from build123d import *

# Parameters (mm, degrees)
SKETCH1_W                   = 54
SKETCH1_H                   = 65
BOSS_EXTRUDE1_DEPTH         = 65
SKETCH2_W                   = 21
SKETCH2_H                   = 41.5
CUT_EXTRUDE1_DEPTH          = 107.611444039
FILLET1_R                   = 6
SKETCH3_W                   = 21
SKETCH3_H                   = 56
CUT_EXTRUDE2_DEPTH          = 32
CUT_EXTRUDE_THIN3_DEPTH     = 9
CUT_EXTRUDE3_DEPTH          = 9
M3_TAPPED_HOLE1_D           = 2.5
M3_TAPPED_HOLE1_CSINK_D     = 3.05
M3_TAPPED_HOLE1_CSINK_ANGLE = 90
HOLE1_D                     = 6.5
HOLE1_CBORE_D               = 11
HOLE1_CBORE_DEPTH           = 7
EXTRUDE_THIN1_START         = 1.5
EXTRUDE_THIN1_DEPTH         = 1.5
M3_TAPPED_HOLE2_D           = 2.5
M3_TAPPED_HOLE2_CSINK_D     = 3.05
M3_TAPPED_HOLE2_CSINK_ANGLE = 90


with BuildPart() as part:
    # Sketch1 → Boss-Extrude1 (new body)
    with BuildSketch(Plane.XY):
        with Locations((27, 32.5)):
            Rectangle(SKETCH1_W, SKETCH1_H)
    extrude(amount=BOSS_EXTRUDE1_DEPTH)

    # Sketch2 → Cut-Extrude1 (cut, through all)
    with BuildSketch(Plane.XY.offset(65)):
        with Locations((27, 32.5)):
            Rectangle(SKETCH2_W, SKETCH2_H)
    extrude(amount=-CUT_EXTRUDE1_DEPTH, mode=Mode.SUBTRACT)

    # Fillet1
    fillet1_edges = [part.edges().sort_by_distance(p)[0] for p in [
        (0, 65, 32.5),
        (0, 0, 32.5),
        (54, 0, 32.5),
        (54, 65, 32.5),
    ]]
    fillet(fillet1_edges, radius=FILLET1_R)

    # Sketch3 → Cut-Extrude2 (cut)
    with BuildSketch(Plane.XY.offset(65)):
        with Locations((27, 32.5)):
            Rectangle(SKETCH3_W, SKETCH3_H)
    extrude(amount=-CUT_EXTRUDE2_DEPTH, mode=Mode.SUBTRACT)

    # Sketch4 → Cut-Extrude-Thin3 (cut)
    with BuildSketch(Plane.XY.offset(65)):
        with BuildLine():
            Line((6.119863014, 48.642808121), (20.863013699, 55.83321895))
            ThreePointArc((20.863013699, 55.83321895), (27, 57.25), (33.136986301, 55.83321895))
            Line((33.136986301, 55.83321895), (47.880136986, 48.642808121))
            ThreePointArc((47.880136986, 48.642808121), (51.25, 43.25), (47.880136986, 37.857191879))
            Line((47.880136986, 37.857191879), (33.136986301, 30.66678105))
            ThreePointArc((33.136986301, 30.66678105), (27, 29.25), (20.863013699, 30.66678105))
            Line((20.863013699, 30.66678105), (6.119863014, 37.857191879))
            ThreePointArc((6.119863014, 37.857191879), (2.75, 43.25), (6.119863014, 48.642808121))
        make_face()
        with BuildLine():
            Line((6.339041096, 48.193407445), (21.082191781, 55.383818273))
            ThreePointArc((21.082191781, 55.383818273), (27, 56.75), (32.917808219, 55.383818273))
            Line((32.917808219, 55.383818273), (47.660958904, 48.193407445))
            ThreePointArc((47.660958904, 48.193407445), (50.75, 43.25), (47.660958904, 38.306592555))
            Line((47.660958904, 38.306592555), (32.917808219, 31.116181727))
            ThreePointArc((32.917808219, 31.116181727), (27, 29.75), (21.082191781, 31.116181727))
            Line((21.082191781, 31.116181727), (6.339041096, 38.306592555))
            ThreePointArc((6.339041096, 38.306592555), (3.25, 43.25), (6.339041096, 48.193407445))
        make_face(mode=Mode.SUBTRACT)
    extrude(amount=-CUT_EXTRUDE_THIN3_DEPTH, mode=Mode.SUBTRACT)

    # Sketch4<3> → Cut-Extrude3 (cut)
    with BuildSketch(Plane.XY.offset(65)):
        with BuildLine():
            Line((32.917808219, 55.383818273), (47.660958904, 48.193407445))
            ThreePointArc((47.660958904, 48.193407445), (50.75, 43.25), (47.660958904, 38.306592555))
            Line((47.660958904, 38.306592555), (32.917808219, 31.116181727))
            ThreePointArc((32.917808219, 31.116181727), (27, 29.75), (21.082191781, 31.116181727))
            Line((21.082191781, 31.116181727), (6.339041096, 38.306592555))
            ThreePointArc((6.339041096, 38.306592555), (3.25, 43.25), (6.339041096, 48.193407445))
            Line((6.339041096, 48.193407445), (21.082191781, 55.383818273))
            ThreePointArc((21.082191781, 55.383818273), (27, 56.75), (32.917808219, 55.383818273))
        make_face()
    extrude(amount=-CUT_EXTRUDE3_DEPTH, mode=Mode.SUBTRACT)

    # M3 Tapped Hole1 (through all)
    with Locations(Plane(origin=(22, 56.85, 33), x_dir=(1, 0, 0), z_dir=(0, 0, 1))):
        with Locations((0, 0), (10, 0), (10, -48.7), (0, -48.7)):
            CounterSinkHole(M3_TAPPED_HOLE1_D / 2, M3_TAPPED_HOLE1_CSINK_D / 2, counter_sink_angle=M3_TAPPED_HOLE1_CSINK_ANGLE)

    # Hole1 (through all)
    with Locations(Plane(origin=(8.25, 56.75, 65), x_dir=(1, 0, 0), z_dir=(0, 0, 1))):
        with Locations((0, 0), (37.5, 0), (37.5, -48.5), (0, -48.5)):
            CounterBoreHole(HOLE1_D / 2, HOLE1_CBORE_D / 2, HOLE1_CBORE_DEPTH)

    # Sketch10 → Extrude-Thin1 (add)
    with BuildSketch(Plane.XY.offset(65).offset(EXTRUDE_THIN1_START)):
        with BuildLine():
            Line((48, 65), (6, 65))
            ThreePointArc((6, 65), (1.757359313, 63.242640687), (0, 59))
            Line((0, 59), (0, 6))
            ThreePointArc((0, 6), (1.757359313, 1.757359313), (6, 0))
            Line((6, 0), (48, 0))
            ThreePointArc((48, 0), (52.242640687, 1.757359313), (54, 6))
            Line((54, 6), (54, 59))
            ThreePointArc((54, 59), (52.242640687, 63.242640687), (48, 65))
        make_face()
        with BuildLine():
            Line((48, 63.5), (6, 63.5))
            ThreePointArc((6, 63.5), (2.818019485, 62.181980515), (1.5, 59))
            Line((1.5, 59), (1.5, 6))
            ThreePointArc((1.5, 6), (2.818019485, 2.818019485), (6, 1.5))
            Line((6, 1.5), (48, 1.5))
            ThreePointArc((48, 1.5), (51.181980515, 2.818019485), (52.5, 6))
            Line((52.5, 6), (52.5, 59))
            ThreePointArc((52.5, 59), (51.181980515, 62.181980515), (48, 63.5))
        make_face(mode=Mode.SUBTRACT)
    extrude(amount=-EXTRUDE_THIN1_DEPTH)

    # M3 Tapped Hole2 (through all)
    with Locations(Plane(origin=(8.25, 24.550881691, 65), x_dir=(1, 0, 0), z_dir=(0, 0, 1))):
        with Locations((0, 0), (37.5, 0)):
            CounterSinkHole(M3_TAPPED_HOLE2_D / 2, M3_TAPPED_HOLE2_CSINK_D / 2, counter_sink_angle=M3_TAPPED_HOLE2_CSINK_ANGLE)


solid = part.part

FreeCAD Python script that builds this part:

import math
import FreeCAD as App
import Part
import Sketcher

V = App.Vector


def edges_at(feature, points):
    """Names of the edges that pass closest to the given points."""
    edges = feature.Shape.Edges
    near = lambda p: min(range(len(edges)), key=lambda i: edges[i].distToShape(Part.Vertex(*p))[0])
    return sorted({f"Edge{near(p) + 1}" for p in points})


def add_polygon(sketch, points):
    """Adds a closed chain of lines whose ends are joined by coincident constraints."""
    first, n = sketch.GeometryCount, len(points)
    for a, b in zip(points, points[1:] + points[:1]):
        sketch.addGeometry(Part.LineSegment(App.Vector(*a, 0), App.Vector(*b, 0)), False)
    for i in range(n):
        sketch.addConstraint(Sketcher.Constraint("Coincident", first + i, 2, first + (i + 1) % n, 1))

doc = App.newDocument("Part")
body = doc.addObject("PartDesign::Body", "Body")

# Sketch on XY plane
sketch1 = body.newObject("Sketcher::SketchObject", "Sketch")
sketch1.AttachmentSupport = (doc.getObject("XY_Plane"), [""])
sketch1.MapMode = "FlatFace"
add_polygon(sketch1, [(0, 65), (0, 0), (54, 0), (54, 65)])  # lines 0-3
sketch1.addConstraint(Sketcher.Constraint("Vertical", 0))
sketch1.addConstraint(Sketcher.Constraint("Horizontal", 1))
sketch1.addConstraint(Sketcher.Constraint("Vertical", 2))
sketch1.addConstraint(Sketcher.Constraint("Horizontal", 3))
sketch1.addConstraint(Sketcher.Constraint("Coincident", 0, 2, -1, 1))
sketch1.addConstraint(Sketcher.Constraint("DistanceX", 1, 1, 1, 2, 54.0))
sketch1.addConstraint(Sketcher.Constraint("DistanceY", 0, 2, 0, 1, 65.0))
pad1 = body.newObject("PartDesign::Pad", "Pad")
pad1.Profile = sketch1
pad1.Length = 65

# Sketch on XY plane
sketch2 = body.newObject("Sketcher::SketchObject", "Sketch001")
sketch2.AttachmentSupport = (doc.getObject("XY_Plane"), [""])
sketch2.MapMode = "FlatFace"
sketch2.AttachmentOffset = App.Placement(V(0, 0, 65), App.Rotation())
add_polygon(sketch2, [(16, 53), (16, 12), (38, 12), (38, 53)])  # lines 0-3
sketch2.addConstraint(Sketcher.Constraint("Vertical", 0))
sketch2.addConstraint(Sketcher.Constraint("Horizontal", 1))
sketch2.addConstraint(Sketcher.Constraint("Vertical", 2))
sketch2.addConstraint(Sketcher.Constraint("Horizontal", 3))
sketch2.addConstraint(Sketcher.Constraint("DistanceX", 1, 1, 1, 2, 21.0))
sketch2.addConstraint(Sketcher.Constraint("DistanceY", 0, 2, 0, 1, 41.5))
sketch2.addConstraint(Sketcher.Constraint("DistanceX", -1, 1, 0, 2, 16.5))
sketch2.addConstraint(Sketcher.Constraint("DistanceY", -1, 1, 0, 2, 11.75))
pocket1 = body.newObject("PartDesign::Pocket", "Pocket")
pocket1.Profile = sketch2
pocket1.Type = "ThroughAll"
doc.recompute()

fillet = body.newObject("PartDesign::Fillet", "Fillet")
fillet.Base = (pocket1, edges_at(pocket1, [
    (0, 65, 32.5),
    (0, 0, 32.5),
    (54, 0, 32.5),
    (54, 65, 32.5),
]))
fillet.Radius = 6

# Sketch on XY plane
sketch3 = body.newObject("Sketcher::SketchObject", "Sketch002")
sketch3.AttachmentSupport = (doc.getObject("XY_Plane"), [""])
sketch3.MapMode = "FlatFace"
sketch3.AttachmentOffset = App.Placement(V(0, 0, 65), App.Rotation())
add_polygon(sketch3, [(16, 60), (16, 4), (38, 4), (38, 60)])  # lines 0-3
sketch3.addConstraint(Sketcher.Constraint("Vertical", 0))
sketch3.addConstraint(Sketcher.Constraint("Horizontal", 1))
sketch3.addConstraint(Sketcher.Constraint("Vertical", 2))
sketch3.addConstraint(Sketcher.Constraint("Horizontal", 3))
sketch3.addConstraint(Sketcher.Constraint("DistanceX", 1, 1, 1, 2, 21.0))
sketch3.addConstraint(Sketcher.Constraint("DistanceY", 0, 2, 0, 1, 56.0))
sketch3.addConstraint(Sketcher.Constraint("DistanceX", -1, 1, 0, 2, 16.5))
sketch3.addConstraint(Sketcher.Constraint("DistanceY", -1, 1, 0, 2, 4.5))
pocket2 = body.newObject("PartDesign::Pocket", "Pocket001")
pocket2.Profile = sketch3
pocket2.Length = 32

# Sketch on XY plane
sketch4 = body.newObject("Sketcher::SketchObject", "Sketch003")
sketch4.AttachmentSupport = (doc.getObject("XY_Plane"), [""])
sketch4.MapMode = "FlatFace"
sketch4.AttachmentOffset = App.Placement(V(0, 0, 65), App.Rotation())
sketch4.addGeometry(Part.LineSegment(V(21, 56, 0), V(6, 49, 0)), False)
sketch4.addGeometry(Part.ArcOfCircle(Part.Circle(V(9, 43, 0), V(0, 0, 1), 6), math.radians(116), math.radians(244)), False)
sketch4.addGeometry(Part.LineSegment(V(6, 38, 0), V(21, 31, 0)), False)
sketch4.addGeometry(Part.ArcOfCircle(Part.Circle(V(27, 43, 0), V(0, 0, 1), 14), math.radians(-116), math.radians(-64)), False)
sketch4.addGeometry(Part.LineSegment(V(33, 31, 0), V(48, 38, 0)), False)
sketch4.addGeometry(Part.ArcOfCircle(Part.Circle(V(45, 43, 0), V(0, 0, 1), 6), math.radians(-64), math.radians(64)), False)
sketch4.addGeometry(Part.LineSegment(V(48, 49, 0), V(33, 56, 0)), False)
sketch4.addGeometry(Part.ArcOfCircle(Part.Circle(V(27, 43, 0), V(0, 0, 1), 14), math.radians(64), math.radians(116)), False)
sketch4.addGeometry(Part.LineSegment(V(6, 48, 0), V(21, 55, 0)), False)
sketch4.addGeometry(Part.ArcOfCircle(Part.Circle(V(27, 43, 0), V(0, 0, 1), 14), math.radians(64), math.radians(116)), False)
sketch4.addGeometry(Part.LineSegment(V(33, 55, 0), V(48, 48, 0)), False)
sketch4.addGeometry(Part.ArcOfCircle(Part.Circle(V(45, 43, 0), V(0, 0, 1), 6), math.radians(-64), math.radians(64)), False)
sketch4.addGeometry(Part.LineSegment(V(48, 38, 0), V(33, 31, 0)), False)
sketch4.addGeometry(Part.ArcOfCircle(Part.Circle(V(27, 43, 0), V(0, 0, 1), 14), math.radians(-116), math.radians(-64)), False)
sketch4.addGeometry(Part.LineSegment(V(21, 31, 0), V(6, 38, 0)), False)
sketch4.addGeometry(Part.ArcOfCircle(Part.Circle(V(9, 43, 0), V(0, 0, 1), 6), math.radians(116), math.radians(244)), False)
sketch4.addConstraint(Sketcher.Constraint("Tangent", 0, 2, 1, 1))
sketch4.addConstraint(Sketcher.Constraint("Tangent", 1, 2, 2, 1))
sketch4.addConstraint(Sketcher.Constraint("Tangent", 2, 2, 3, 1))
sketch4.addConstraint(Sketcher.Constraint("Tangent", 3, 2, 4, 1))
sketch4.addConstraint(Sketcher.Constraint("Tangent", 4, 2, 5, 1))
sketch4.addConstraint(Sketcher.Constraint("Tangent", 5, 2, 6, 1))
sketch4.addConstraint(Sketcher.Constraint("Tangent", 6, 2, 7, 1))
sketch4.addConstraint(Sketcher.Constraint("Tangent", 7, 2, 0, 1))
sketch4.addConstraint(Sketcher.Constraint("Tangent", 8, 2, 9, 2))
sketch4.addConstraint(Sketcher.Constraint("Tangent", 9, 1, 10, 1))
sketch4.addConstraint(Sketcher.Constraint("Tangent", 10, 2, 11, 2))
sketch4.addConstraint(Sketcher.Constraint("Tangent", 11, 1, 12, 1))
sketch4.addConstraint(Sketcher.Constraint("Tangent", 12, 2, 13, 2))
sketch4.addConstraint(Sketcher.Constraint("Tangent", 13, 1, 14, 1))
sketch4.addConstraint(Sketcher.Constraint("Tangent", 14, 2, 15, 2))
sketch4.addConstraint(Sketcher.Constraint("Tangent", 15, 1, 8, 1))
sketch4.addConstraint(Sketcher.Constraint("Coincident", 7, 3, 3, 3))
sketch4.addConstraint(Sketcher.Constraint("Coincident", 9, 3, 3, 3))
sketch4.addConstraint(Sketcher.Constraint("Coincident", 11, 3, 5, 3))
sketch4.addConstraint(Sketcher.Constraint("Coincident", 13, 3, 3, 3))
sketch4.addConstraint(Sketcher.Constraint("Coincident", 15, 3, 1, 3))
sketch4.addConstraint(Sketcher.Constraint("Equal", 1, 5))
sketch4.addConstraint(Sketcher.Constraint("Equal", 3, 7))
sketch4.addConstraint(Sketcher.Constraint("Equal", 9, 13))
sketch4.addConstraint(Sketcher.Constraint("Equal", 11, 15))
sketch4.addConstraint(Sketcher.Constraint("Parallel", 0, 4))
sketch4.addConstraint(Sketcher.Constraint("Parallel", 2, 6))
sketch4.addConstraint(Sketcher.Constraint("Parallel", 4, 8))
sketch4.addConstraint(Sketcher.Constraint("Horizontal", 1, 3, 3, 3))
sketch4.addConstraint(Sketcher.Constraint("Radius", 1, 6.0))
sketch4.addConstraint(Sketcher.Constraint("Radius", 3, 14.0))
sketch4.addConstraint(Sketcher.Constraint("Radius", 9, 13.5))
sketch4.addConstraint(Sketcher.Constraint("DistanceX", -1, 1, 3, 3, 27.0))
sketch4.addConstraint(Sketcher.Constraint("DistanceX", 1, 3, 5, 3, 36.5))
sketch4.addConstraint(Sketcher.Constraint("DistanceY", -1, 1, 1, 3, 43.25))
pocket3 = body.newObject("PartDesign::Pocket", "Pocket002")
pocket3.Profile = sketch4
pocket3.Length = 9

# Sketch on XY plane
sketch5 = body.newObject("Sketcher::SketchObject", "Sketch004")
sketch5.AttachmentSupport = (doc.getObject("XY_Plane"), [""])
sketch5.MapMode = "FlatFace"
sketch5.AttachmentOffset = App.Placement(V(0, 0, 65), App.Rotation())
sketch5.addGeometry(Part.LineSegment(V(48, 48, 0), V(33, 55, 0)), False)
sketch5.addGeometry(Part.ArcOfCircle(Part.Circle(V(27, 43, 0), V(0, 0, 1), 14), math.radians(64), math.radians(116)), False)
sketch5.addGeometry(Part.LineSegment(V(21, 55, 0), V(6, 48, 0)), False)
sketch5.addGeometry(Part.ArcOfCircle(Part.Circle(V(9, 43, 0), V(0, 0, 1), 6), math.radians(116), math.radians(244)), False)
sketch5.addGeometry(Part.LineSegment(V(6, 38, 0), V(21, 31, 0)), False)
sketch5.addGeometry(Part.ArcOfCircle(Part.Circle(V(27, 43, 0), V(0, 0, 1), 14), math.radians(-116), math.radians(-64)), False)
sketch5.addGeometry(Part.LineSegment(V(33, 31, 0), V(48, 38, 0)), False)
sketch5.addGeometry(Part.ArcOfCircle(Part.Circle(V(45, 43, 0), V(0, 0, 1), 6), math.radians(-64), math.radians(64)), False)
sketch5.addConstraint(Sketcher.Constraint("Tangent", 0, 2, 1, 1))
sketch5.addConstraint(Sketcher.Constraint("Tangent", 1, 2, 2, 1))
sketch5.addConstraint(Sketcher.Constraint("Tangent", 2, 2, 3, 1))
sketch5.addConstraint(Sketcher.Constraint("Tangent", 3, 2, 4, 1))
sketch5.addConstraint(Sketcher.Constraint("Tangent", 4, 2, 5, 1))
sketch5.addConstraint(Sketcher.Constraint("Tangent", 5, 2, 6, 1))
sketch5.addConstraint(Sketcher.Constraint("Tangent", 6, 2, 7, 1))
sketch5.addConstraint(Sketcher.Constraint("Tangent", 7, 2, 0, 1))
sketch5.addConstraint(Sketcher.Constraint("Coincident", 5, 3, 1, 3))
sketch5.addConstraint(Sketcher.Constraint("Equal", 1, 5))
sketch5.addConstraint(Sketcher.Constraint("Equal", 3, 7))
sketch5.addConstraint(Sketcher.Constraint("Parallel", 0, 4))
sketch5.addConstraint(Sketcher.Constraint("Parallel", 2, 6))
sketch5.addConstraint(Sketcher.Constraint("Horizontal", 1, 3, 3, 3))
sketch5.addConstraint(Sketcher.Constraint("Radius", 1, 13.5))
sketch5.addConstraint(Sketcher.Constraint("Radius", 3, 5.5))
sketch5.addConstraint(Sketcher.Constraint("DistanceX", -1, 1, 1, 3, 27.0))
sketch5.addConstraint(Sketcher.Constraint("DistanceX", 3, 3, 7, 3, 36.5))
sketch5.addConstraint(Sketcher.Constraint("DistanceY", -1, 1, 1, 3, 43.25))
pocket4 = body.newObject("PartDesign::Pocket", "Pocket003")
pocket4.Profile = sketch5
pocket4.Length = 9

# Sketch on XY plane
sketch6 = body.newObject("Sketcher::SketchObject", "Sketch005")
sketch6.AttachmentSupport = (doc.getObject("XY_Plane"), [""])
sketch6.MapMode = "FlatFace"
sketch6.AttachmentOffset = App.Placement(V(0, 0, 33), App.Rotation())
sketch6.addGeometry(Part.Circle(V(22, 56.9, 0), V(0, 0, 1), 1.2), False)
sketch6.addGeometry(Part.Circle(V(32, 56.9, 0), V(0, 0, 1), 1.2), False)
sketch6.addGeometry(Part.Circle(V(32, 8.2, 0), V(0, 0, 1), 1.2), False)
sketch6.addGeometry(Part.Circle(V(22, 8.2, 0), V(0, 0, 1), 1.2), False)
sketch6.addConstraint(Sketcher.Constraint("Equal", 0, 1))
sketch6.addConstraint(Sketcher.Constraint("Equal", 1, 2))
sketch6.addConstraint(Sketcher.Constraint("Equal", 2, 3))
sketch6.addConstraint(Sketcher.Constraint("Horizontal", 0, 3, 1, 3))
sketch6.addConstraint(Sketcher.Constraint("Horizontal", 2, 3, 3, 3))
sketch6.addConstraint(Sketcher.Constraint("Vertical", 1, 3, 2, 3))
sketch6.addConstraint(Sketcher.Constraint("Vertical", 0, 3, 3, 3))
sketch6.addConstraint(Sketcher.Constraint("Diameter", 0, 2.5))
sketch6.addConstraint(Sketcher.Constraint("DistanceX", -1, 1, 0, 3, 22.0))
sketch6.addConstraint(Sketcher.Constraint("DistanceX", -1, 1, 1, 3, 32.0))
sketch6.addConstraint(Sketcher.Constraint("DistanceY", 2, 3, 1, 3, 48.7))
sketch6.addConstraint(Sketcher.Constraint("DistanceY", -1, 1, 0, 3, 56.85))
doc.recompute()
hole = body.newObject("PartDesign::Hole", "Hole")
hole.Profile = sketch6
hole.ThreadType = "None"
hole.Diameter = 2.5
hole.DepthType = "ThroughAll"
hole.HoleCutType = "Countersink"
hole.HoleCutDiameter = 3.05
hole.HoleCutCountersinkAngle = 90

# Sketch on XY plane
sketch7 = body.newObject("Sketcher::SketchObject", "Sketch006")
sketch7.AttachmentSupport = (doc.getObject("XY_Plane"), [""])
sketch7.MapMode = "FlatFace"
sketch7.AttachmentOffset = App.Placement(V(0, 0, 65), App.Rotation())
sketch7.addGeometry(Part.Circle(V(8.2, 56.8, 0), V(0, 0, 1), 3.2), False)
sketch7.addGeometry(Part.Circle(V(45.8, 56.8, 0), V(0, 0, 1), 3.2), False)
sketch7.addGeometry(Part.Circle(V(45.8, 8.2, 0), V(0, 0, 1), 3.2), False)
sketch7.addGeometry(Part.Circle(V(8.2, 8.2, 0), V(0, 0, 1), 3.2), False)
sketch7.addConstraint(Sketcher.Constraint("Equal", 0, 1))
sketch7.addConstraint(Sketcher.Constraint("Equal", 1, 2))
sketch7.addConstraint(Sketcher.Constraint("Equal", 2, 3))
sketch7.addConstraint(Sketcher.Constraint("Horizontal", 0, 3, 1, 3))
sketch7.addConstraint(Sketcher.Constraint("Horizontal", 2, 3, 3, 3))
sketch7.addConstraint(Sketcher.Constraint("Vertical", 1, 3, 2, 3))
sketch7.addConstraint(Sketcher.Constraint("Vertical", 0, 3, 3, 3))
sketch7.addConstraint(Sketcher.Constraint("Diameter", 0, 6.5))
sketch7.addConstraint(Sketcher.Constraint("DistanceX", 0, 3, 1, 3, 37.5))
sketch7.addConstraint(Sketcher.Constraint("DistanceY", 2, 3, 1, 3, 48.5))
sketch7.addConstraint(Sketcher.Constraint("DistanceX", -1, 1, 0, 3, 8.25))
sketch7.addConstraint(Sketcher.Constraint("DistanceY", -1, 1, 0, 3, 56.75))
doc.recompute()
hole2 = body.newObject("PartDesign::Hole", "Hole001")
hole2.Profile = sketch7
hole2.ThreadType = "None"
hole2.Diameter = 6.5
hole2.DepthType = "ThroughAll"
hole2.HoleCutType = "Counterbore"
hole2.HoleCutDiameter = 11
hole2.HoleCutDepth = 7

# Sketch on XY plane
sketch8 = body.newObject("Sketcher::SketchObject", "Sketch007")
sketch8.AttachmentSupport = (doc.getObject("XY_Plane"), [""])
sketch8.MapMode = "FlatFace"
sketch8.AttachmentOffset = App.Placement(V(0, 0, 66.5), App.Rotation())
sketch8.addGeometry(Part.LineSegment(V(48, 65, 0), V(6, 65, 0)), False)
sketch8.addGeometry(Part.ArcOfCircle(Part.Circle(V(6, 59, 0), V(0, 0, 1), 6), math.radians(90), math.radians(180)), False)
sketch8.addGeometry(Part.LineSegment(V(0, 59, 0), V(0, 6, 0)), False)
sketch8.addGeometry(Part.ArcOfCircle(Part.Circle(V(6, 6, 0), V(0, 0, 1), 6), math.radians(180), math.radians(270)), False)
sketch8.addGeometry(Part.LineSegment(V(6, 0, 0), V(48, 0, 0)), False)
sketch8.addGeometry(Part.ArcOfCircle(Part.Circle(V(48, 6, 0), V(0, 0, 1), 6), math.radians(-90), math.radians(0)), False)
sketch8.addGeometry(Part.LineSegment(V(54, 6, 0), V(54, 59, 0)), False)
sketch8.addGeometry(Part.ArcOfCircle(Part.Circle(V(48, 59, 0), V(0, 0, 1), 6), math.radians(0), math.radians(90)), False)
sketch8.addGeometry(Part.LineSegment(V(6, 63.5, 0), V(48, 63.5, 0)), False)
sketch8.addGeometry(Part.ArcOfCircle(Part.Circle(V(48, 59, 0), V(0, 0, 1), 4.5), math.radians(0), math.radians(90)), False)
sketch8.addGeometry(Part.LineSegment(V(52.5, 59, 0), V(52.5, 6, 0)), False)
sketch8.addGeometry(Part.ArcOfCircle(Part.Circle(V(48, 6, 0), V(0, 0, 1), 4.5), math.radians(-90), math.radians(0)), False)
sketch8.addGeometry(Part.LineSegment(V(48, 1.5, 0), V(6, 1.5, 0)), False)
sketch8.addGeometry(Part.ArcOfCircle(Part.Circle(V(6, 6, 0), V(0, 0, 1), 4.5), math.radians(-180), math.radians(-90)), False)
sketch8.addGeometry(Part.LineSegment(V(1.5, 6, 0), V(1.5, 59, 0)), False)
sketch8.addGeometry(Part.ArcOfCircle(Part.Circle(V(6, 59, 0), V(0, 0, 1), 4.5), math.radians(90), math.radians(180)), False)
sketch8.addConstraint(Sketcher.Constraint("Tangent", 0, 2, 1, 1))
sketch8.addConstraint(Sketcher.Constraint("Tangent", 1, 2, 2, 1))
sketch8.addConstraint(Sketcher.Constraint("Tangent", 2, 2, 3, 1))
sketch8.addConstraint(Sketcher.Constraint("Tangent", 3, 2, 4, 1))
sketch8.addConstraint(Sketcher.Constraint("Tangent", 4, 2, 5, 1))
sketch8.addConstraint(Sketcher.Constraint("Tangent", 5, 2, 6, 1))
sketch8.addConstraint(Sketcher.Constraint("Tangent", 6, 2, 7, 1))
sketch8.addConstraint(Sketcher.Constraint("Tangent", 7, 2, 0, 1))
sketch8.addConstraint(Sketcher.Constraint("Tangent", 8, 2, 9, 2))
sketch8.addConstraint(Sketcher.Constraint("Tangent", 9, 1, 10, 1))
sketch8.addConstraint(Sketcher.Constraint("Tangent", 10, 2, 11, 2))
sketch8.addConstraint(Sketcher.Constraint("Tangent", 11, 1, 12, 1))
sketch8.addConstraint(Sketcher.Constraint("Tangent", 12, 2, 13, 2))
sketch8.addConstraint(Sketcher.Constraint("Tangent", 13, 1, 14, 1))
sketch8.addConstraint(Sketcher.Constraint("Tangent", 14, 2, 15, 2))
sketch8.addConstraint(Sketcher.Constraint("Tangent", 15, 1, 8, 1))
sketch8.addConstraint(Sketcher.Constraint("Horizontal", 0))
sketch8.addConstraint(Sketcher.Constraint("Vertical", 2))
sketch8.addConstraint(Sketcher.Constraint("Horizontal", 4))
sketch8.addConstraint(Sketcher.Constraint("Vertical", 6))
sketch8.addConstraint(Sketcher.Constraint("Horizontal", 8))
sketch8.addConstraint(Sketcher.Constraint("Vertical", 10))
sketch8.addConstraint(Sketcher.Constraint("Horizontal", 12))
sketch8.addConstraint(Sketcher.Constraint("Vertical", 14))
sketch8.addConstraint(Sketcher.Constraint("Coincident", 9, 3, 7, 3))
sketch8.addConstraint(Sketcher.Constraint("Coincident", 11, 3, 5, 3))
sketch8.addConstraint(Sketcher.Constraint("Coincident", 13, 3, 3, 3))
sketch8.addConstraint(Sketcher.Constraint("Equal", 1, 3))
sketch8.addConstraint(Sketcher.Constraint("Equal", 3, 5))
sketch8.addConstraint(Sketcher.Constraint("Equal", 5, 7))
sketch8.addConstraint(Sketcher.Constraint("Equal", 13, 15))
sketch8.addConstraint(Sketcher.Constraint("PointOnObject", 1, 2, -2))
sketch8.addConstraint(Sketcher.Constraint("PointOnObject", 3, 2, -1))
sketch8.addConstraint(Sketcher.Constraint("Radius", 1, 6.0))
sketch8.addConstraint(Sketcher.Constraint("Radius", 9, 4.5))
sketch8.addConstraint(Sketcher.Constraint("DistanceX", 0, 2, 0, 1, 42.0))
sketch8.addConstraint(Sketcher.Constraint("DistanceY", 2, 2, 2, 1, 53.0))
pad2 = body.newObject("PartDesign::Pad", "Pad001")
pad2.Profile = sketch8
pad2.Length = 1.5
pad2.Reversed = True

# Sketch on XY plane
sketch9 = body.newObject("Sketcher::SketchObject", "Sketch008")
sketch9.AttachmentSupport = (doc.getObject("XY_Plane"), [""])
sketch9.MapMode = "FlatFace"
sketch9.AttachmentOffset = App.Placement(V(0, 0, 65), App.Rotation())
sketch9.addGeometry(Part.Circle(V(8.2, 24.6, 0), V(0, 0, 1), 1.2), False)
sketch9.addGeometry(Part.Circle(V(45.8, 24.6, 0), V(0, 0, 1), 1.2), False)
sketch9.addConstraint(Sketcher.Constraint("Equal", 0, 1))
sketch9.addConstraint(Sketcher.Constraint("Horizontal", 0, 3, 1, 3))
sketch9.addConstraint(Sketcher.Constraint("Diameter", 0, 2.5))
sketch9.addConstraint(Sketcher.Constraint("DistanceX", 0, 3, 1, 3, 37.5))
sketch9.addConstraint(Sketcher.Constraint("DistanceX", -1, 1, 0, 3, 8.25))
sketch9.addConstraint(Sketcher.Constraint("DistanceY", -1, 1, 0, 3, 24.550882))
doc.recompute()
hole3 = body.newObject("PartDesign::Hole", "Hole002")
hole3.Profile = sketch9
hole3.ThreadType = "None"
hole3.Diameter = 2.5
hole3.DepthType = "ThroughAll"
hole3.HoleCutType = "Countersink"
hole3.HoleCutDiameter = 3.05
hole3.HoleCutCountersinkAngle = 90

doc.recompute()
